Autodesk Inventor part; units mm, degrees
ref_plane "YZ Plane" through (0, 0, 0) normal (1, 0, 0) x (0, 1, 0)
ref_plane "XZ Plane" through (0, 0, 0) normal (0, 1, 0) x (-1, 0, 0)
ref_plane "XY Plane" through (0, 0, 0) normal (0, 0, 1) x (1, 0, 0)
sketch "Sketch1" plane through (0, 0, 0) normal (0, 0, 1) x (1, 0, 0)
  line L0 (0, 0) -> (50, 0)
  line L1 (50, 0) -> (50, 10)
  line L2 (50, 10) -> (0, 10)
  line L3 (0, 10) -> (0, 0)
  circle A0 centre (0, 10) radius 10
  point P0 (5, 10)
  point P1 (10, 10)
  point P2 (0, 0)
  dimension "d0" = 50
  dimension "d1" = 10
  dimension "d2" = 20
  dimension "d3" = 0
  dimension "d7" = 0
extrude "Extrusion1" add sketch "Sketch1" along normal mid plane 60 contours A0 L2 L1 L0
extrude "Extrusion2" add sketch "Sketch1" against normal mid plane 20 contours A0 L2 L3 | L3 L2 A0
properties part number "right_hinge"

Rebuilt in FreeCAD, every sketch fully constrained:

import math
import FreeCAD as App
import Part
import Sketcher
Q = App.Units.Quantity

doc = App.newDocument("Part")
body = doc.addObject("PartDesign::Body", "Body")

# Sketch on XY plane
sketch1 = body.newObject("Sketcher::SketchObject", "Sketch")
sketch1.AttachmentSupport = (doc.getObject("XY_Plane"), [""])
sketch1.MapMode = "FlatFace"
sketch1.addGeometry(Part.ArcOfCircle(Part.Circle(App.Vector(0, 10, 0), App.Vector(0, 0, 1), 10), math.radians(-90), math.radians(0)), False)
sketch1.addGeometry(Part.LineSegment(App.Vector(0, 0, 0), App.Vector(50, 0, 0)), False)
sketch1.addGeometry(Part.LineSegment(App.Vector(50, 0, 0), App.Vector(50, 10, 0)), False)
sketch1.addGeometry(Part.LineSegment(App.Vector(50, 10, 0), App.Vector(10, 10, 0)), False)
sketch1.addConstraint(Sketcher.Constraint("Tangent", 0, 1, 1, 1))
sketch1.addConstraint(Sketcher.Constraint("Coincident", 1, 2, 2, 1))
sketch1.addConstraint(Sketcher.Constraint("Coincident", 2, 2, 3, 1))
sketch1.addConstraint(Sketcher.Constraint("Coincident", 3, 2, 0, 2))
sketch1.addConstraint(Sketcher.Constraint("Horizontal", 1))
sketch1.addConstraint(Sketcher.Constraint("Vertical", 2))
sketch1.addConstraint(Sketcher.Constraint("Horizontal", 3))
sketch1.addConstraint(Sketcher.Constraint("Coincident", 0, 1, -1, 1))
sketch1.addConstraint(Sketcher.Constraint("Horizontal", 0, 3, 2, 2))
sketch1.addConstraint(Sketcher.Constraint("Radius", 0, Q("10 mm")))
sketch1.addConstraint(Sketcher.Constraint("DistanceX", 1, 1, 1, 2, Q("50 mm")))
pad1 = body.newObject("PartDesign::Pad", "Pad")
pad1.Profile = sketch1
pad1.Length = 60
pad1.Midplane = True

# Sketch on XY plane
sketch2 = body.newObject("Sketcher::SketchObject", "Sketch001")
sketch2.AttachmentSupport = (doc.getObject("XY_Plane"), [""])
sketch2.MapMode = "FlatFace"
sketch2.addGeometry(Part.Circle(App.Vector(0, 10, 0), App.Vector(0, 0, 1), 10), False)
sketch2.addConstraint(Sketcher.Constraint("PointOnObject", 0, 3, -2))
sketch2.addConstraint(Sketcher.Constraint("Diameter", 0, Q("20 mm")))
sketch2.addConstraint(Sketcher.Constraint("DistanceY", -1, 1, 0, 3, Q("10 mm")))
pad2 = body.newObject("PartDesign::Pad", "Pad001")
pad2.Profile = sketch2
pad2.Length = 20
pad2.Midplane = True

doc.recompute()
